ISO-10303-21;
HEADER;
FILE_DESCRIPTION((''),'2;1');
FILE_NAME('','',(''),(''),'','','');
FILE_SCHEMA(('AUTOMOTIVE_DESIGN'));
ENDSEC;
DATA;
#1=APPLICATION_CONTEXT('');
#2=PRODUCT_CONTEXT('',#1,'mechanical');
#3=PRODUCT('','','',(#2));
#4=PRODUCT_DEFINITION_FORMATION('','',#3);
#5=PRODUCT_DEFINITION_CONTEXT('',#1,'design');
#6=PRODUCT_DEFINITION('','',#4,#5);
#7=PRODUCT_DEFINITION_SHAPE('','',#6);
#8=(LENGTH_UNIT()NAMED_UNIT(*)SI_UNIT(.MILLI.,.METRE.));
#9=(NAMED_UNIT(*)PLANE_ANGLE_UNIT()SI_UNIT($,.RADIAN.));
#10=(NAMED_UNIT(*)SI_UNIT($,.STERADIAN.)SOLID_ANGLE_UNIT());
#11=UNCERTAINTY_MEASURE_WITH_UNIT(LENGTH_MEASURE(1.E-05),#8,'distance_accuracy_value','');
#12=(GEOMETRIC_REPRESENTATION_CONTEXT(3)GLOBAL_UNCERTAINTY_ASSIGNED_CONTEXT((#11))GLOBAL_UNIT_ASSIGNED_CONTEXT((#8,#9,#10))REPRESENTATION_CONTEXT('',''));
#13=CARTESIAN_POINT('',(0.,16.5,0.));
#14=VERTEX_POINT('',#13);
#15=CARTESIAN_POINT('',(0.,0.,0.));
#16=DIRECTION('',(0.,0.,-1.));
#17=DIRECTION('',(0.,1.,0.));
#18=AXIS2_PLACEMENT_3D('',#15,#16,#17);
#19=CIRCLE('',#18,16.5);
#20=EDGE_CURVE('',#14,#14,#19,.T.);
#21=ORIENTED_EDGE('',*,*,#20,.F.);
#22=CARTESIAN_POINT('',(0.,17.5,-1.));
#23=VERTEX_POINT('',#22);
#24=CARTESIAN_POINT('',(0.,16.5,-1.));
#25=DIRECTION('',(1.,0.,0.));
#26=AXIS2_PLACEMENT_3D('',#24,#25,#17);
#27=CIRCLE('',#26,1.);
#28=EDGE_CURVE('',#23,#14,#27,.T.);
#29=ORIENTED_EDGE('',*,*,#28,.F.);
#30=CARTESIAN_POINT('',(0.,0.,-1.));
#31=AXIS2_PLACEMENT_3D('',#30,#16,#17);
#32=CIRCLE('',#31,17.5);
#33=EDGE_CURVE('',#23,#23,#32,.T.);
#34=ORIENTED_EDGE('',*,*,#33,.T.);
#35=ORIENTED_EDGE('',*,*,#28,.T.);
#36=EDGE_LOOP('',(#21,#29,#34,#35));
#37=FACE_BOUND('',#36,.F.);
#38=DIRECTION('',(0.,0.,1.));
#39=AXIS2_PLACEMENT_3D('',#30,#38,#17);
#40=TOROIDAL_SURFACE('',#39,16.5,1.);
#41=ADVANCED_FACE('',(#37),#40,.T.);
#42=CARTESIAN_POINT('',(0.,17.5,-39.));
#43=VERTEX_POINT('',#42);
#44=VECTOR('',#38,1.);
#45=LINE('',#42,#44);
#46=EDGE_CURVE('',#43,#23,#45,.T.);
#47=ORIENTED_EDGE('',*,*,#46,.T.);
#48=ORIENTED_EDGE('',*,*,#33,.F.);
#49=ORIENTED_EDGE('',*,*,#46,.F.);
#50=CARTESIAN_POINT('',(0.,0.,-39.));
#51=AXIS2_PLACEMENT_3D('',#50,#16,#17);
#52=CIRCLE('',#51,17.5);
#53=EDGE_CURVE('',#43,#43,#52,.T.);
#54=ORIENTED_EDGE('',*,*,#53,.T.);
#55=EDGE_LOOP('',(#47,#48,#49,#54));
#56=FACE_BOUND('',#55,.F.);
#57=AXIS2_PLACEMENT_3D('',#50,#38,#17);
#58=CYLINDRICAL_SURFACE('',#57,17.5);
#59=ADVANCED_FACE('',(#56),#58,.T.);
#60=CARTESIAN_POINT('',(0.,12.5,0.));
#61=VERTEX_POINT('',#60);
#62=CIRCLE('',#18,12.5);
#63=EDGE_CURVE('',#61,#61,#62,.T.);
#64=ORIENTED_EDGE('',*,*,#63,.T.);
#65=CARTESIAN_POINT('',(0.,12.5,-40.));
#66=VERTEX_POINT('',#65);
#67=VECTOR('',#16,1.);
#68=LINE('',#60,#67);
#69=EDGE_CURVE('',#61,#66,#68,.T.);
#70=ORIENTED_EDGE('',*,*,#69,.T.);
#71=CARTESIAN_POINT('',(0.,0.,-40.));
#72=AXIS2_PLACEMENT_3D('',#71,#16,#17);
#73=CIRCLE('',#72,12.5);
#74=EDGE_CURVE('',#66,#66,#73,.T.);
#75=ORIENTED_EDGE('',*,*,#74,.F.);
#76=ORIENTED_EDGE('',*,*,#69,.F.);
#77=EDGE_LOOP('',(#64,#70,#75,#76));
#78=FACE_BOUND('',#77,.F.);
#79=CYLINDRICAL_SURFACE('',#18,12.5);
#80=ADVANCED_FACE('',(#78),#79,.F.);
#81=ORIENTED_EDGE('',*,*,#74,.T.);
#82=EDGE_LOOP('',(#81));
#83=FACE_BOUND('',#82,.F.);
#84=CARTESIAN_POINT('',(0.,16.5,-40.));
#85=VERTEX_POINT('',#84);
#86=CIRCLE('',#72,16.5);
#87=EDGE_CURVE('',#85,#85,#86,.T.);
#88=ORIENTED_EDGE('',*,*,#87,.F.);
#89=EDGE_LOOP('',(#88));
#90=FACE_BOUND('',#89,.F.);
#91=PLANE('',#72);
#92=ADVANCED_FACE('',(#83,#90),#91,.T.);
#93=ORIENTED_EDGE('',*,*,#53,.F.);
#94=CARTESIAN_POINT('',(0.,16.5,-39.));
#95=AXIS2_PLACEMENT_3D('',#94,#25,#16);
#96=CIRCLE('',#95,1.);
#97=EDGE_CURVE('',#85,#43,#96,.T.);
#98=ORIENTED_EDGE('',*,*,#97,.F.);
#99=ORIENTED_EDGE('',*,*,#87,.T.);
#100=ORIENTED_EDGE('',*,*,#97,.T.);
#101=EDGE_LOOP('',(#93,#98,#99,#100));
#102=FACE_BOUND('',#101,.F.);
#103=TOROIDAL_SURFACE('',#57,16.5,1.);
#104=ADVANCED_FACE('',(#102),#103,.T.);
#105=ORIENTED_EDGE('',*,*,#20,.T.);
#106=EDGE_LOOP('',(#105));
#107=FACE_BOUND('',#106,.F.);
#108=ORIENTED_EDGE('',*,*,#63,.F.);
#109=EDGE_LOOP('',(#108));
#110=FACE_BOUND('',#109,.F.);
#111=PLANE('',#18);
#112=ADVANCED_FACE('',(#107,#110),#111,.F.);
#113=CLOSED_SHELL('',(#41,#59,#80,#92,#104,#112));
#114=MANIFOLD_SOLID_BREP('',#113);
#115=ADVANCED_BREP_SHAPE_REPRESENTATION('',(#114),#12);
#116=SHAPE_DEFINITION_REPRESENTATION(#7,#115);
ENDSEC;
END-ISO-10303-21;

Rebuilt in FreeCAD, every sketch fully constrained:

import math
import FreeCAD as App
import Part
import Sketcher

V = App.Vector

doc = App.newDocument("Part")
params = doc.addObject("Spreadsheet::Sheet", "Params")
for row, (alias, value) in enumerate([
    ("sketch1_radius", "1 mm"),
    ("sketch1_width", "4 mm"),
    ("sketch1_height", "40 mm"),
    ("revolution_angle", "360 deg"),
], start=1):
    params.set(f"A{row}", alias)
    params.set(f"B{row}", "=" + value)
    params.setAlias(f"B{row}", alias)

body = doc.addObject("PartDesign::Body", "Body")

# Sketch on YZ plane
sketch1 = body.newObject("Sketcher::SketchObject", "Sketch")
sketch1.AttachmentSupport = (doc.getObject("YZ_Plane"), [""])
sketch1.MapMode = "FlatFace"
sketch1.addGeometry([
    Part.LineSegment(V(16.5, 0, 0), V(12.5, 0, 0)),  # 0
    Part.LineSegment(V(12.5, 0, 0), V(12.5, -40, 0)),  # 1
    Part.LineSegment(V(12.5, -40, 0), V(16.5, -40, 0)),  # 2
    Part.ArcOfCircle(Part.Circle(V(16.5, -39, 0), V(0, 0, 1), 1), math.radians(-90), math.radians(0)),  # 3
    Part.LineSegment(V(17.5, -39, 0), V(17.5, -1, 0)),  # 4
    Part.ArcOfCircle(Part.Circle(V(16.5, -1, 0), V(0, 0, 1), 1), math.radians(0), math.radians(90)),  # 5
], False)
sketch1.addConstraint([
    Sketcher.Constraint("Coincident", 0, 2, 1, 1),
    Sketcher.Constraint("Coincident", 1, 2, 2, 1),
    Sketcher.Constraint("Tangent", 2, 2, 3, 1),
    Sketcher.Constraint("Tangent", 3, 2, 4, 1),
    Sketcher.Constraint("Tangent", 4, 2, 5, 1),
    Sketcher.Constraint("Tangent", 5, 2, 0, 1),
    Sketcher.Constraint("Horizontal", 0),
    Sketcher.Constraint("Vertical", 1),
    Sketcher.Constraint("Horizontal", 2),
    Sketcher.Constraint("Vertical", 4),
    Sketcher.Constraint("Equal", 3, 5),
    Sketcher.Constraint("PointOnObject", 0, 2, -1),
    Sketcher.Constraint("Radius", 3, 1.0),
    Sketcher.Constraint("DistanceX", 0, 2, 0, 1, 4.0),
    Sketcher.Constraint("DistanceY", 1, 2, 1, 1, 40.0),
    Sketcher.Constraint("DistanceX", -1, 1, 3, 3, 16.5),
])
sketch1.setExpression("Constraints[12]", "Params.sketch1_radius")
sketch1.setExpression("Constraints[13]", "Params.sketch1_width")
sketch1.setExpression("Constraints[14]", "Params.sketch1_height")
revolution = body.newObject("PartDesign::Revolution", "Revolution")
revolution.Profile = sketch1
revolution.ReferenceAxis = (sketch1, ["V_Axis"])
revolution.setExpression("Angle", "Params.revolution_angle")

doc.recompute()
